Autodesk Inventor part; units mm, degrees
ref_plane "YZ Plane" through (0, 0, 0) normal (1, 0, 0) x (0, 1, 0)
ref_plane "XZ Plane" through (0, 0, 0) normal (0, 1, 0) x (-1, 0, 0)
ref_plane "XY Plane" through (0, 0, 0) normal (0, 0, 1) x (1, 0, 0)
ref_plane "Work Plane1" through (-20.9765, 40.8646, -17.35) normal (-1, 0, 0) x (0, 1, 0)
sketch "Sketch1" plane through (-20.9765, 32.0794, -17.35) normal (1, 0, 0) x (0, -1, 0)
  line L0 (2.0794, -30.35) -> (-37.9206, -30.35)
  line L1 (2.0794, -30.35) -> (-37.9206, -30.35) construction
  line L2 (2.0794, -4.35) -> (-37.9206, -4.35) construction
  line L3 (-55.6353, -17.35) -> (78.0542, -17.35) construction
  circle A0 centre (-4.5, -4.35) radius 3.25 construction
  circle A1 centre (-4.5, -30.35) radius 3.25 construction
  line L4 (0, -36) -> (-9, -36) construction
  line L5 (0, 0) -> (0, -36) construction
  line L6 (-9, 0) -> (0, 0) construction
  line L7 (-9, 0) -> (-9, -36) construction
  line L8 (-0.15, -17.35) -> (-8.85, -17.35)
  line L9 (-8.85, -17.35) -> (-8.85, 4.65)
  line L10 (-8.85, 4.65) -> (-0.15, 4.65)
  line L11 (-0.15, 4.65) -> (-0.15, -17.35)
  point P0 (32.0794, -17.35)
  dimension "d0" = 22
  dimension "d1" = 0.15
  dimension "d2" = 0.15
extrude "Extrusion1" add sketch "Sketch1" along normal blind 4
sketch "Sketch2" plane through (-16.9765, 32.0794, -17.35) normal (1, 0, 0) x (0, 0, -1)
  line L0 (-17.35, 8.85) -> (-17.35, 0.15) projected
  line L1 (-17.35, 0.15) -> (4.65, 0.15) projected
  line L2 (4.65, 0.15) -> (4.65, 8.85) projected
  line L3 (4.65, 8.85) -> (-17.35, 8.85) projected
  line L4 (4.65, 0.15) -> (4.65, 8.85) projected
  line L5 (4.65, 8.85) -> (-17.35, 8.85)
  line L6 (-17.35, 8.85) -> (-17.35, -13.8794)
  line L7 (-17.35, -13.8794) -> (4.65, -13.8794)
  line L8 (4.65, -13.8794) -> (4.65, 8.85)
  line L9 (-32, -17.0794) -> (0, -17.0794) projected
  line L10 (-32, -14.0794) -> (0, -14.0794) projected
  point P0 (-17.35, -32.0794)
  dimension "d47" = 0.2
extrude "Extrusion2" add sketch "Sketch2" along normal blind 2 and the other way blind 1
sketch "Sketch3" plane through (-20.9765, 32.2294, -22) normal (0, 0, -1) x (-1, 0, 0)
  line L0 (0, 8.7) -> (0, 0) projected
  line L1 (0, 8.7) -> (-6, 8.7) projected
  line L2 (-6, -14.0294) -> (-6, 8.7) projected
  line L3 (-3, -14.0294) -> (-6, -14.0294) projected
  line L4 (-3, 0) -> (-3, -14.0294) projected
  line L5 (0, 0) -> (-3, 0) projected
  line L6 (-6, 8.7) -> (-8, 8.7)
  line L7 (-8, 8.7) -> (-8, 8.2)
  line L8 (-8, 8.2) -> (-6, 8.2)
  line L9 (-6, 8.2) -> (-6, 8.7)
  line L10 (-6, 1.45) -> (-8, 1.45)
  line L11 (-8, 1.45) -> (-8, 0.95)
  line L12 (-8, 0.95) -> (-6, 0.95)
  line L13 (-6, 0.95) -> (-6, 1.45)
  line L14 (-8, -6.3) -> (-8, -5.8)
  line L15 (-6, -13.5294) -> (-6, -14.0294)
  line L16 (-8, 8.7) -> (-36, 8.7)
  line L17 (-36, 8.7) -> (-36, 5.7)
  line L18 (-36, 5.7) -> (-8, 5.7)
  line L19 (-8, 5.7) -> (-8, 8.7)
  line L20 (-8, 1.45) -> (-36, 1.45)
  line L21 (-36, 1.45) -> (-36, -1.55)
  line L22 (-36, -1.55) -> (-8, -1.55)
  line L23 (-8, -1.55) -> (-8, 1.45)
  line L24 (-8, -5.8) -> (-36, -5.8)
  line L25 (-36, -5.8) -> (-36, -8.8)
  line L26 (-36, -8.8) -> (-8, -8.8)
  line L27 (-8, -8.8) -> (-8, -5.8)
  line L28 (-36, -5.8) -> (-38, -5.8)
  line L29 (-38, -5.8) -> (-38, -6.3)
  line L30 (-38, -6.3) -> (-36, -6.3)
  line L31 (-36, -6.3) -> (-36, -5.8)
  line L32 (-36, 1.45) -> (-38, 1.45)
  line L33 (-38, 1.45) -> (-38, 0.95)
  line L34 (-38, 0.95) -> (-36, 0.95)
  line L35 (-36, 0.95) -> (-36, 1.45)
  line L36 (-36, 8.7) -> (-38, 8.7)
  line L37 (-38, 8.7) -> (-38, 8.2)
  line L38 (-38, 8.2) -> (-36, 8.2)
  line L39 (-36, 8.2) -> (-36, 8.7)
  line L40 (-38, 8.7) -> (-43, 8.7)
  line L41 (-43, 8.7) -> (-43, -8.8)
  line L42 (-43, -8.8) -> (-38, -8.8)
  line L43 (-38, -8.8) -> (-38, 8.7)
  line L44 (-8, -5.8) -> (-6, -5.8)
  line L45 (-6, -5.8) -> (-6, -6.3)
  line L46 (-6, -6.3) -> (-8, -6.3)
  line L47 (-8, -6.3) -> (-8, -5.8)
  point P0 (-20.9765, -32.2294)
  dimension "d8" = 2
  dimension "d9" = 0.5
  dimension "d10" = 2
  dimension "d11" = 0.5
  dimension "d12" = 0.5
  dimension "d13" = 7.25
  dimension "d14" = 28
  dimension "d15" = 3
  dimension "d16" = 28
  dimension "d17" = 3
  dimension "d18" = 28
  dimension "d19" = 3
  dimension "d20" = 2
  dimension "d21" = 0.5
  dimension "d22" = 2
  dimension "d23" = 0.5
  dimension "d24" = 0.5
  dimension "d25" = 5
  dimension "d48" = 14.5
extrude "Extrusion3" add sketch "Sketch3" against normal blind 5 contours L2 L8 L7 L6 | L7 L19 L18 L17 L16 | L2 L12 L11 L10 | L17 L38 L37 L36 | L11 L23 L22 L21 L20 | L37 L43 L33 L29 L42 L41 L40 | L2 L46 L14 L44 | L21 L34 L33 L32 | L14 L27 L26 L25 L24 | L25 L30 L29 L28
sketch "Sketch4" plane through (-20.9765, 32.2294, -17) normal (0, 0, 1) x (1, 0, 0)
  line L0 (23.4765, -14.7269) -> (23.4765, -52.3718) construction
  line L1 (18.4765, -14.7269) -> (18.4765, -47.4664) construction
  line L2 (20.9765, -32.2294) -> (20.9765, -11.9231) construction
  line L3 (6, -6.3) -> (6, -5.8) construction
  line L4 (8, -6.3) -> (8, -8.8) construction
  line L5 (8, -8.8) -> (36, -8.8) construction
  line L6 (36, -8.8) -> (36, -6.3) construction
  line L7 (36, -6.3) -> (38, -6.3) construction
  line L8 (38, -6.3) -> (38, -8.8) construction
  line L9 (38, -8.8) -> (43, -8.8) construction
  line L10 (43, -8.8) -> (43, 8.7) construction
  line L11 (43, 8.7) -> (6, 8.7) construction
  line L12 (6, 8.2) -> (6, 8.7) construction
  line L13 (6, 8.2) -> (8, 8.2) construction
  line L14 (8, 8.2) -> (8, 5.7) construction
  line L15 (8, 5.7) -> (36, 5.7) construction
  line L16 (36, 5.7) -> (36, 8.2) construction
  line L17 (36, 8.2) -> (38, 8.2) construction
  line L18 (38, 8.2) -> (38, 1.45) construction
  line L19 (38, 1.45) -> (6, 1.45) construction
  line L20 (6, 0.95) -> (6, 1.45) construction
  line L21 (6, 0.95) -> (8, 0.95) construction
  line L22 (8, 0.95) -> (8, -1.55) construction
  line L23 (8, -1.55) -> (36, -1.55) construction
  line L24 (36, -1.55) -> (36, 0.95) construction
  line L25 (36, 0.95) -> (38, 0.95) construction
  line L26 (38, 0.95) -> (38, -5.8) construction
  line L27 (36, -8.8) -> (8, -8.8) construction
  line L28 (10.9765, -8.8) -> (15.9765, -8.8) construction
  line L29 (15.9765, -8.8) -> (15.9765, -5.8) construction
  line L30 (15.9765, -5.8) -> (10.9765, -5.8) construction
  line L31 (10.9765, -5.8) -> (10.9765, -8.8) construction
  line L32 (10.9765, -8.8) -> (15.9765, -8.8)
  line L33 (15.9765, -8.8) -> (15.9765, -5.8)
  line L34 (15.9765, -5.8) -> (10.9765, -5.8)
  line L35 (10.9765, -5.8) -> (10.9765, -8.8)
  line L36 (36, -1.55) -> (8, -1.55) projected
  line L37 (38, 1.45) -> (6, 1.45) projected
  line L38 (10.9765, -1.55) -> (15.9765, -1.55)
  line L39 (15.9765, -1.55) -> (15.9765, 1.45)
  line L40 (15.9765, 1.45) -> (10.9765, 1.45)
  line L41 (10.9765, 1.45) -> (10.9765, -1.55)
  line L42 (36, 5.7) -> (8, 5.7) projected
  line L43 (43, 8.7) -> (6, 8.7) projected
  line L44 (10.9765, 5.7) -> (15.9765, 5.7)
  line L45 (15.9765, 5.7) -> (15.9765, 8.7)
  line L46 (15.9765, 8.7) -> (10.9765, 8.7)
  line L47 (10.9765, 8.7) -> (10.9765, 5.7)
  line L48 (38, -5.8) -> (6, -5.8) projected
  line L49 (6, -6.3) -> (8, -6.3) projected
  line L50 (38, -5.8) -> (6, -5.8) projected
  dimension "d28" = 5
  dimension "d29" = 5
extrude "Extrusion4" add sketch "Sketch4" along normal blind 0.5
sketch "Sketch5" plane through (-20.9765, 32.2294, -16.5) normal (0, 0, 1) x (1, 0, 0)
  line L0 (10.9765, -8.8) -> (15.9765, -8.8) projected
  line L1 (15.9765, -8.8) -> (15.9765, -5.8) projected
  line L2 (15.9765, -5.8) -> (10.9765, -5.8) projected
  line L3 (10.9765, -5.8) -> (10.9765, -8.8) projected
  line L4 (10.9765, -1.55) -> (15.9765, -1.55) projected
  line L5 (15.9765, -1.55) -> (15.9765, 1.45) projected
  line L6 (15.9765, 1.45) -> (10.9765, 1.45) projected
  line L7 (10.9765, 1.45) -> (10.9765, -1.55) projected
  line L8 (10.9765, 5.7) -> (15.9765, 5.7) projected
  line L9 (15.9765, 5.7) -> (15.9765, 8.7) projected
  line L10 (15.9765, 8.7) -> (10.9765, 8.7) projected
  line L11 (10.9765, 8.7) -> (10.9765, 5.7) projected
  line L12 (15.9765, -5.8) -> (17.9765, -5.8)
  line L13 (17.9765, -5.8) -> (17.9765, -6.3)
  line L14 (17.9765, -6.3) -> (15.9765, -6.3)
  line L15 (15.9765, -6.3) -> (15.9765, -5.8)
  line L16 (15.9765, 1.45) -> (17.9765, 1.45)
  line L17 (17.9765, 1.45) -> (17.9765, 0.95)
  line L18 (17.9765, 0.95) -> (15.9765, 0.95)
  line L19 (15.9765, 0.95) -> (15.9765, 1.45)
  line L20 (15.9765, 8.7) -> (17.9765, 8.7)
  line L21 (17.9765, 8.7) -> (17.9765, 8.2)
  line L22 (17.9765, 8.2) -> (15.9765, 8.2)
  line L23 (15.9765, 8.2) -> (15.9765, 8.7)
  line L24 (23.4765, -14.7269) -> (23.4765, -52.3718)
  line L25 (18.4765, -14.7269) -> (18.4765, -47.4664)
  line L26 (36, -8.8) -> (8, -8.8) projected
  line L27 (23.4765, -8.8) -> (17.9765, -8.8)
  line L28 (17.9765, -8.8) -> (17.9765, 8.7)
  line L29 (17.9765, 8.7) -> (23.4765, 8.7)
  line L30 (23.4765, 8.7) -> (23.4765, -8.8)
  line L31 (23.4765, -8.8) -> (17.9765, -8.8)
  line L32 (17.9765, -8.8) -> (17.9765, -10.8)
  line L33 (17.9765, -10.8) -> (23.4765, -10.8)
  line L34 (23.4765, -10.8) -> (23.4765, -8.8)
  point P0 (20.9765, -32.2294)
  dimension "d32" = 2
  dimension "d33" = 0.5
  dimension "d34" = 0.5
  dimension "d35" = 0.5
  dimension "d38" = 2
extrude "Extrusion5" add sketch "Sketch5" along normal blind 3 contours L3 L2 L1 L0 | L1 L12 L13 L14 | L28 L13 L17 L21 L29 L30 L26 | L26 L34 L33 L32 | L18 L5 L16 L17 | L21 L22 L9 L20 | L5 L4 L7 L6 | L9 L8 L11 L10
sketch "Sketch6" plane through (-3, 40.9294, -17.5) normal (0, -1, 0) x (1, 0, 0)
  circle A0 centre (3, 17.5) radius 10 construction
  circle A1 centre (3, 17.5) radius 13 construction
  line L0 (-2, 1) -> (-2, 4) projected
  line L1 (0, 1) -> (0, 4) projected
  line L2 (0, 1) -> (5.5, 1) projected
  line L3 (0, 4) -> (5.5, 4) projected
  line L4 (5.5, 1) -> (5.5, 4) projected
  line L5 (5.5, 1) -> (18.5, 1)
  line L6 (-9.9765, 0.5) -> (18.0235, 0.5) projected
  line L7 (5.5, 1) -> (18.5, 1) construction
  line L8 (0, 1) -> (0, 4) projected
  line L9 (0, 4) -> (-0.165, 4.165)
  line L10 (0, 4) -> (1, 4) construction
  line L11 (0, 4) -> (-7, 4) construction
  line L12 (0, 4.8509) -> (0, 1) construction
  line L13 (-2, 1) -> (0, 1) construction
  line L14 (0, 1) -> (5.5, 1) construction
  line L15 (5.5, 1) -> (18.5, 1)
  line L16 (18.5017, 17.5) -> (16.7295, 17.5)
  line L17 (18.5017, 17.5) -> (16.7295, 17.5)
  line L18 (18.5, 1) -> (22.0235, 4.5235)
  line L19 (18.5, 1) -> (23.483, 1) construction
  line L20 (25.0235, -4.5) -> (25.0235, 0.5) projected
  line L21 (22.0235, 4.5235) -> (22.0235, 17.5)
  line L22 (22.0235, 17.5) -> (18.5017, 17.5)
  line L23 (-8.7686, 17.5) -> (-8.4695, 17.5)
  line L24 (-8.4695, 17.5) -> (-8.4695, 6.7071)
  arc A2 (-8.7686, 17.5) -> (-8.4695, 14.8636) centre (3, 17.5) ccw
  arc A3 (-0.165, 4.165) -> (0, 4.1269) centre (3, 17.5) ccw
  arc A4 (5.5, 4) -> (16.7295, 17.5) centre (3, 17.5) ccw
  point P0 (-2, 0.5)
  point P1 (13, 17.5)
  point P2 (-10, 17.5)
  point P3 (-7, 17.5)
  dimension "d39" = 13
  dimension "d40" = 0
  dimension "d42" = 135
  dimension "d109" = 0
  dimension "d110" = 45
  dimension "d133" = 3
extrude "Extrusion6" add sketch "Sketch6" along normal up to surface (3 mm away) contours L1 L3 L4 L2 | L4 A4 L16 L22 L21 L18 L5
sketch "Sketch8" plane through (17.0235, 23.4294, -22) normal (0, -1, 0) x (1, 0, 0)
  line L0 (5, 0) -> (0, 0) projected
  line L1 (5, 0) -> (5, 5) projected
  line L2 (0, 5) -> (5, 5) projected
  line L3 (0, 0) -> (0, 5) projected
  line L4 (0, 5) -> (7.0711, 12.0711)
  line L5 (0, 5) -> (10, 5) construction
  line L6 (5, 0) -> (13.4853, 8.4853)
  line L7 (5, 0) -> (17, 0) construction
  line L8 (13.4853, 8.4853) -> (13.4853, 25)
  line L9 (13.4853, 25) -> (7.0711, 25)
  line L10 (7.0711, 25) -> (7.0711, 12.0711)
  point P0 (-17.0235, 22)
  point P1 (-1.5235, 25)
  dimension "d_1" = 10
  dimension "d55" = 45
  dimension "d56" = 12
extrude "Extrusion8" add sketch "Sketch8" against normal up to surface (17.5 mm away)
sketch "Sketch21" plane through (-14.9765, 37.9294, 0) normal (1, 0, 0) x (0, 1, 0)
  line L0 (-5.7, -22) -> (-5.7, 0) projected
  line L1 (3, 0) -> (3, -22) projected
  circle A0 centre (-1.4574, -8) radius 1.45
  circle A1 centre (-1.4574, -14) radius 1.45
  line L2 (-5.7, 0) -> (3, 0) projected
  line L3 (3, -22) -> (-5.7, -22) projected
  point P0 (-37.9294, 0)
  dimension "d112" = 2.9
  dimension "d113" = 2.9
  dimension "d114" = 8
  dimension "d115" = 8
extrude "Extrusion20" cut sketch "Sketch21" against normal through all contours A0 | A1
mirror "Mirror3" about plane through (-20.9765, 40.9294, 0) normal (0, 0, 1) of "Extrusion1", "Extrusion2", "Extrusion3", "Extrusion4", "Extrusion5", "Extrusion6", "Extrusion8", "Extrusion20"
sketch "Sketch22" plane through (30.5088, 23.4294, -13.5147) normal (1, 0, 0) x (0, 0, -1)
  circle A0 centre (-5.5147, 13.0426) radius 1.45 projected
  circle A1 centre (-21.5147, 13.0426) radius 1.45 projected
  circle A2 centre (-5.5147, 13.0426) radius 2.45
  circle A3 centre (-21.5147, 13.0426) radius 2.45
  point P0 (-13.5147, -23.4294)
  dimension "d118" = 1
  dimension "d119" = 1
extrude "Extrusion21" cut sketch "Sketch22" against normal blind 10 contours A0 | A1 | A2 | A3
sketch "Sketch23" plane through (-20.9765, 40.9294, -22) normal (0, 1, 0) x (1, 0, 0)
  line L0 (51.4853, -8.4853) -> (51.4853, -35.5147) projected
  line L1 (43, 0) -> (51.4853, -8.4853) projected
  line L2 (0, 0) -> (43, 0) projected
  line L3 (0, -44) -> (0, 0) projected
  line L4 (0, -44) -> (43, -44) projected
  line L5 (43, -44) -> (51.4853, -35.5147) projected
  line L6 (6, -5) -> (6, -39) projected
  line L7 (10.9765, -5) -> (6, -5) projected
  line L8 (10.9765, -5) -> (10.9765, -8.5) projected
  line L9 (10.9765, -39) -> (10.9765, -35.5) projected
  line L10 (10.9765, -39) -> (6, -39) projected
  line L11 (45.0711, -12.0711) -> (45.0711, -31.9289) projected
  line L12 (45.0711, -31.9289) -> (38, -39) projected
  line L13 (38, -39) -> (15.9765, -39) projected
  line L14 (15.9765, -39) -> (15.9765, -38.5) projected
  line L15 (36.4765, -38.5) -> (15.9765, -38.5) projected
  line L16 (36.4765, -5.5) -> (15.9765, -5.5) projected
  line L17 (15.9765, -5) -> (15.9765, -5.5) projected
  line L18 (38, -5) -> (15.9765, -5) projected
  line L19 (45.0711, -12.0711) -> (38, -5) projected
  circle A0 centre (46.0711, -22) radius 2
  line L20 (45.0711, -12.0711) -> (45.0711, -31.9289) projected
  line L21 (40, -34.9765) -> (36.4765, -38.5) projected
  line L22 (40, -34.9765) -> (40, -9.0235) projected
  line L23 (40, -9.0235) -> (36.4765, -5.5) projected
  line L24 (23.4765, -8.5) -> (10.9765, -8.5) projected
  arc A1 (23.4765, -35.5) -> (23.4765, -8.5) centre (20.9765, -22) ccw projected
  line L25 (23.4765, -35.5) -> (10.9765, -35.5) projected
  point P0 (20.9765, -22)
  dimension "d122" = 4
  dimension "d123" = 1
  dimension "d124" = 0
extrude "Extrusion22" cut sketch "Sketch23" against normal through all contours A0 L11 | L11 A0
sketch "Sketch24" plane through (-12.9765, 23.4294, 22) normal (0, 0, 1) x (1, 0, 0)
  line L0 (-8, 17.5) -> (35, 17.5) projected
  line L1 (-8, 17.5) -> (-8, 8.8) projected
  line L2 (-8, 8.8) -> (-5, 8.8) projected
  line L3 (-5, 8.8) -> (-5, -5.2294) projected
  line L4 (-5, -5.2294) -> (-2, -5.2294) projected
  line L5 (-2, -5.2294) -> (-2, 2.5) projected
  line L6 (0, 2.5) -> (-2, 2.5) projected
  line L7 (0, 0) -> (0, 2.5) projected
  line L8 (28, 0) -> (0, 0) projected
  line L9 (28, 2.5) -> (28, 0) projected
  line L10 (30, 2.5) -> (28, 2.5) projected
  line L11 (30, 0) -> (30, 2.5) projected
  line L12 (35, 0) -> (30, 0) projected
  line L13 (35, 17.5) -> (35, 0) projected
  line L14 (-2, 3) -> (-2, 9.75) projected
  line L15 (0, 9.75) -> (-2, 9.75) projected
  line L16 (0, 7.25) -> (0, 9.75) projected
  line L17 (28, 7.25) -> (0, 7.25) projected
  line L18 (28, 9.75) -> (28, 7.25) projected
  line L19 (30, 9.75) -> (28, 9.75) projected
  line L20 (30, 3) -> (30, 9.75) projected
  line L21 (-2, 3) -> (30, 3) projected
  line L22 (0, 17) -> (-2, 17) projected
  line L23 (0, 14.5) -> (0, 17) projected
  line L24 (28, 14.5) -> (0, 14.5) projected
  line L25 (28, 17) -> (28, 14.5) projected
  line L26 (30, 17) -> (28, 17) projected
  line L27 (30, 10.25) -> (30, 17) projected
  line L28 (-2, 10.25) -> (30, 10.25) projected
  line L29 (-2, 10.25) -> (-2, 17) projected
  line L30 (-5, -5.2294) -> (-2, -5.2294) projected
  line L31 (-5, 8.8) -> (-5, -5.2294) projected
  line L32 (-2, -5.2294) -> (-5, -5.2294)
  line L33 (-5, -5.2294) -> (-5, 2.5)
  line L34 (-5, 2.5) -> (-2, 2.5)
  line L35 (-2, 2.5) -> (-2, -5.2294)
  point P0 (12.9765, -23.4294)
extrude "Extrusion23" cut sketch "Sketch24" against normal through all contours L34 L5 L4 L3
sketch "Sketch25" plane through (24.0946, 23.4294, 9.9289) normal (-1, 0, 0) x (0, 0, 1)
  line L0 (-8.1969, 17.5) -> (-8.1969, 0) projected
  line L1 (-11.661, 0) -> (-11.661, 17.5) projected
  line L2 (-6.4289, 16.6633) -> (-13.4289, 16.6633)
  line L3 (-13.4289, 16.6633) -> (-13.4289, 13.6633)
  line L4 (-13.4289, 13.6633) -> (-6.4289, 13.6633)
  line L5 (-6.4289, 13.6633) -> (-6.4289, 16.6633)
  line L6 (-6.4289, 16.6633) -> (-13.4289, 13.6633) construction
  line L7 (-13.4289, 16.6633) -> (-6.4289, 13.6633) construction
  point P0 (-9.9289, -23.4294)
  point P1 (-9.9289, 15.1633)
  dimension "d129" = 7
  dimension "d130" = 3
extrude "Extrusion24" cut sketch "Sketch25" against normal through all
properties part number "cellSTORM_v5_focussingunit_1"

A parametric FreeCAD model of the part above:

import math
import FreeCAD as App
import Part
import Sketcher
Q = App.Units.Quantity


def add_polygon(sketch, points):
    """Adds a closed chain of lines whose ends are joined by coincident constraints."""
    first, n = sketch.GeometryCount, len(points)
    for a, b in zip(points, points[1:] + points[:1]):
        sketch.addGeometry(Part.LineSegment(App.Vector(*a, 0), App.Vector(*b, 0)), False)
    for i in range(n):
        sketch.addConstraint(Sketcher.Constraint("Coincident", first + i, 2, first + (i + 1) % n, 1))

doc = App.newDocument("Part")
body = doc.addObject("PartDesign::Body", "Body")

# Sketch on YZ plane
sketch1 = doc.addObject("Sketcher::SketchObject", "Sketch")
body.addObject(sketch1)
sketch1.AttachmentSupport = (doc.YZ_Plane, [""])
sketch1.MapMode = "FlatFace"
sketch1.AttachmentOffset = App.Placement(App.Vector(0, 0, -20.9765), App.Rotation())
add_polygon(sketch1, [(40.9294, 0), (32.2294, 0), (32.2294, -22), (40.9294, -22)])  # lines 0-3
sketch1.addConstraint([
    Sketcher.Constraint("Horizontal", 0),
    Sketcher.Constraint("Vertical", 1),
    Sketcher.Constraint("Horizontal", 2),
    Sketcher.Constraint("Vertical", 3),
    Sketcher.Constraint("PointOnObject", 0, 2, -1),
    Sketcher.Constraint("DistanceY", 1, 2, 1, 1, 22.0),
    Sketcher.Constraint("DistanceX", 0, 2, 0, 1, 8.7),
    Sketcher.Constraint("DistanceX", -1, 1, 0, 2, 32.2294),
])
pad1 = doc.addObject("PartDesign::Pad", "Pad")
body.addObject(pad1)
pad1.Profile = sketch1
pad1.Length = 4

# Sketch on YZ plane
sketch2 = doc.addObject("Sketcher::SketchObject", "Sketch001")
body.addObject(sketch2)
sketch2.AttachmentSupport = (doc.YZ_Plane, [""])
sketch2.MapMode = "FlatFace"
sketch2.AttachmentOffset = App.Placement(App.Vector(0, 0, -16.9765), App.Rotation())
add_polygon(sketch2, [(40.9294, -22), (40.9294, 0), (18.2, 0), (18.2, -22)])  # lines 0-3
sketch2.addConstraint([
    Sketcher.Constraint("Vertical", 0),
    Sketcher.Constraint("Horizontal", 1),
    Sketcher.Constraint("Vertical", 2),
    Sketcher.Constraint("Horizontal", 3),
    Sketcher.Constraint("PointOnObject", 0, 2, -1),
    Sketcher.Constraint("DistanceY", 0, 1, 0, 2, 22.0),
    Sketcher.Constraint("DistanceX", -1, 1, 1, 2, 18.2),
    Sketcher.Constraint("DistanceX", 1, 2, 1, 1, 22.7294),
])
pad2 = doc.addObject("PartDesign::Pad", "Pad001")
body.addObject(pad2)
pad2.Profile = sketch2
pad2.Type = "TwoLengths"
pad2.Length = 2
pad2.Length2 = 1

# Sketch on XY plane
sketch3 = doc.addObject("Sketcher::SketchObject", "Sketch002")
body.addObject(sketch3)
sketch3.AttachmentSupport = (doc.XY_Plane, [""])
sketch3.MapMode = "FlatFace"
sketch3.AttachmentOffset = App.Placement(App.Vector(0, 0, -22), App.Rotation())
add_polygon(sketch3, [(-14.9765, 40.4294), (-14.9765, 40.9294), (22.0235, 40.9294), (22.0235, 23.4294), (17.0235, 23.4294), (17.0235, 25.9294), (15.0235, 25.9294), (15.0235, 23.4294), (-12.9765, 23.4294), (-12.9765, 25.9294), (-14.9765, 25.9294), (-14.9765, 26.4294), (17.0235, 26.4294), (17.0235, 33.1794), (15.0235, 33.1794), (15.0235, 30.6794), (-12.9765, 30.6794), (-12.9765, 33.1794), (-14.9765, 33.1794), (-14.9765, 33.6794), (17.0235, 33.6794), (17.0235, 40.4294), (15.0235, 40.4294), (15.0235, 37.9294), (-12.9765, 37.9294), (-12.9765, 40.4294)])  # lines 0-25
sketch3.addConstraint([
    Sketcher.Constraint("Vertical", 0),
    Sketcher.Constraint("Horizontal", 1),
    Sketcher.Constraint("Vertical", 2),
    Sketcher.Constraint("Horizontal", 3),
    Sketcher.Constraint("Vertical", 4),
    Sketcher.Constraint("Horizontal", 5),
    Sketcher.Constraint("Vertical", 6),
    Sketcher.Constraint("Horizontal", 7),
    Sketcher.Constraint("Vertical", 8),
    Sketcher.Constraint("Horizontal", 9),
    Sketcher.Constraint("Vertical", 10),
    Sketcher.Constraint("Horizontal", 11),
    Sketcher.Constraint("Vertical", 12),
    Sketcher.Constraint("Horizontal", 13),
    Sketcher.Constraint("Vertical", 14),
    Sketcher.Constraint("Horizontal", 15),
    Sketcher.Constraint("Vertical", 16),
    Sketcher.Constraint("Horizontal", 17),
    Sketcher.Constraint("Vertical", 18),
    Sketcher.Constraint("Horizontal", 19),
    Sketcher.Constraint("Vertical", 20),
    Sketcher.Constraint("Horizontal", 21),
    Sketcher.Constraint("Vertical", 22),
    Sketcher.Constraint("Horizontal", 23),
    Sketcher.Constraint("Vertical", 24),
    Sketcher.Constraint("Horizontal", 25),
    Sketcher.Constraint("Horizontal", 3, 2, 6, 2),
    Sketcher.Constraint("Horizontal", 5, 2, 8, 2),
    Sketcher.Constraint("Horizontal", 13, 2, 16, 2),
    Sketcher.Constraint("Horizontal", 21, 2, 24, 2),
    Sketcher.Constraint("Vertical", 0, 2, 9, 2),
    Sketcher.Constraint("Vertical", 4, 2, 11, 2),
    Sketcher.Constraint("Vertical", 6, 2, 13, 2),
    Sketcher.Constraint("Vertical", 8, 2, 15, 2),
    Sketcher.Constraint("Vertical", 10, 2, 17, 2),
    Sketcher.Constraint("Vertical", 12, 2, 19, 2),
    Sketcher.Constraint("Vertical", 14, 2, 21, 2),
    Sketcher.Constraint("Vertical", 16, 2, 23, 2),
    Sketcher.Constraint("Equal", 5, 9),
    Sketcher.Constraint("Equal", 0, 10),
    Sketcher.Constraint("Equal", 8, 14),
    Sketcher.Constraint("Equal", 10, 18),
    Sketcher.Constraint("Equal", 12, 20),
    Sketcher.Constraint("Equal", 16, 22),
    Sketcher.Constraint("DistanceX", 3, 2, 3, 1, 5.0),
    Sketcher.Constraint("DistanceX", 5, 2, 5, 1, 2.0),
    Sketcher.Constraint("DistanceX", 7, 2, 7, 1, 28.0),
    Sketcher.Constraint("DistanceY", 0, 1, 0, 2, 0.5),
    Sketcher.Constraint("DistanceY", 7, 2, 10, 2, 3.0),
    Sketcher.Constraint("DistanceY", 10, 2, 0, 2, 14.5),
    Sketcher.Constraint("DistanceX", 0, 2, -1, 1, 14.9765),
    Sketcher.Constraint("DistanceY", -1, 1, 0, 2, 40.9294),
])
pad3 = doc.addObject("PartDesign::Pad", "Pad002")
body.addObject(pad3)
pad3.Profile = sketch3
pad3.Length = 5

# Sketch on XY plane
sketch4 = doc.addObject("Sketcher::SketchObject", "Sketch003")
body.addObject(sketch4)
sketch4.AttachmentSupport = (doc.XY_Plane, [""])
sketch4.MapMode = "FlatFace"
sketch4.AttachmentOffset = App.Placement(App.Vector(0, 0, -17), App.Rotation())
add_polygon(sketch4, [(-10, 26.4294), (-10, 23.4294), (-5, 23.4294), (-5, 26.4294)])  # lines 0-3
add_polygon(sketch4, [(-10, 30.6794), (-5, 30.6794), (-5, 33.6794), (-10, 33.6794)])  # lines 4-7
add_polygon(sketch4, [(-10, 37.9294), (-5, 37.9294), (-5, 40.9294), (-10, 40.9294)])  # lines 8-11
sketch4.addConstraint([
    Sketcher.Constraint("Vertical", 0),
    Sketcher.Constraint("Horizontal", 1),
    Sketcher.Constraint("Vertical", 2),
    Sketcher.Constraint("Horizontal", 3),
    Sketcher.Constraint("Horizontal", 4),
    Sketcher.Constraint("Vertical", 5),
    Sketcher.Constraint("Horizontal", 6),
    Sketcher.Constraint("Vertical", 7),
    Sketcher.Constraint("Horizontal", 8),
    Sketcher.Constraint("Vertical", 9),
    Sketcher.Constraint("Horizontal", 10),
    Sketcher.Constraint("Vertical", 11),
    Sketcher.Constraint("Vertical", 2, 2, 4, 2),
    Sketcher.Constraint("Vertical", 3, 2, 6, 2),
    Sketcher.Constraint("Vertical", 5, 2, 8, 2),
    Sketcher.Constraint("Vertical", 7, 2, 10, 2),
    Sketcher.Constraint("Equal", 2, 5),
    Sketcher.Constraint("Equal", 7, 9),
    Sketcher.Constraint("DistanceX", 1, 1, 1, 2, 5.0),
    Sketcher.Constraint("DistanceX", 1, 2, -1, 1, 5.0),
    Sketcher.Constraint("DistanceY", 0, 2, 0, 1, 3.0),
    Sketcher.Constraint("DistanceY", 2, 2, 8, 2, 11.5),
    Sketcher.Constraint("DistanceY", 2, 2, 4, 2, 4.25),
    Sketcher.Constraint("DistanceY", -1, 1, 0, 2, 23.4294),
])
pad4 = doc.addObject("PartDesign::Pad", "Pad003")
body.addObject(pad4)
pad4.Profile = sketch4
pad4.Length = 0.5

# Sketch on XY plane
sketch5 = doc.addObject("Sketcher::SketchObject", "Sketch004")
body.addObject(sketch5)
sketch5.AttachmentSupport = (doc.XY_Plane, [""])
sketch5.MapMode = "FlatFace"
sketch5.AttachmentOffset = App.Placement(App.Vector(0, 0, -16.5), App.Rotation())
add_polygon(sketch5, [(-10, 26.4294), (-10, 23.4294), (-5, 23.4294), (-5, 25.9294), (-3, 25.9294), (-3, 21.4294), (2.5, 21.4294), (2.5, 40.9294), (-10, 40.9294), (-10, 37.9294), (-5, 37.9294), (-5, 40.4294), (-3, 40.4294), (-3, 33.6794), (-10, 33.6794), (-10, 30.6794), (-5, 30.6794), (-5, 33.1794), (-3, 33.1794), (-3, 26.4294)])  # lines 0-19
sketch5.addConstraint([
    Sketcher.Constraint("Vertical", 0),
    Sketcher.Constraint("Horizontal", 1),
    Sketcher.Constraint("Vertical", 2),
    Sketcher.Constraint("Horizontal", 3),
    Sketcher.Constraint("Vertical", 4),
    Sketcher.Constraint("Horizontal", 5),
    Sketcher.Constraint("Vertical", 6),
    Sketcher.Constraint("Horizontal", 7),
    Sketcher.Constraint("Vertical", 8),
    Sketcher.Constraint("Horizontal", 9),
    Sketcher.Constraint("Vertical", 10),
    Sketcher.Constraint("Horizontal", 11),
    Sketcher.Constraint("Vertical", 12),
    Sketcher.Constraint("Horizontal", 13),
    Sketcher.Constraint("Vertical", 14),
    Sketcher.Constraint("Horizontal", 15),
    Sketcher.Constraint("Vertical", 16),
    Sketcher.Constraint("Horizontal", 17),
    Sketcher.Constraint("Vertical", 18),
    Sketcher.Constraint("Horizontal", 19),
    Sketcher.Constraint("Vertical", 0, 2, 7, 2),
    Sketcher.Constraint("Vertical", 2, 2, 9, 2),
    Sketcher.Constraint("Vertical", 4, 2, 11, 2),
    Sketcher.Constraint("Vertical", 8, 2, 13, 2),
    Sketcher.Constraint("Vertical", 10, 2, 15, 2),
    Sketcher.Constraint("Vertical", 12, 2, 17, 2),
    Sketcher.Constraint("Equal", 0, 8),
    Sketcher.Constraint("Equal", 2, 10),
    Sketcher.Constraint("Equal", 8, 14),
    Sketcher.Constraint("Equal", 10, 16),
    Sketcher.Constraint("Equal", 12, 18),
    Sketcher.Constraint("DistanceX", 3, 1, 3, 2, 2.0),
    Sketcher.Constraint("DistanceY", 4, 2, 1, 2, 2.0),
    Sketcher.Constraint("DistanceY", 10, 2, 7, 2, 0.5),
    Sketcher.Constraint("DistanceX", 1, 1, 1, 2, 5.0),
    Sketcher.Constraint("DistanceY", 0, 2, 0, 1, 3.0),
    Sketcher.Constraint("DistanceX", 5, 1, 5, 2, 5.5),
    Sketcher.Constraint("DistanceY", 6, 1, 6, 2, 19.5),
    Sketcher.Constraint("DistanceX", 0, 2, -1, 1, 10.0),
    Sketcher.Constraint("DistanceY", -1, 1, 0, 2, 23.4294),
])
pad5 = doc.addObject("PartDesign::Pad", "Pad004")
body.addObject(pad5)
pad5.Profile = sketch5
pad5.Length = 3

# Sketch on XZ plane
sketch6 = doc.addObject("Sketcher::SketchObject", "Sketch005")
body.addObject(sketch6)
sketch6.AttachmentSupport = (doc.XZ_Plane, [""])
sketch6.MapMode = "FlatFace"
sketch6.AttachmentOffset = App.Placement(App.Vector(0, 0, -40.9294), App.Rotation())
sketch6.addGeometry([
    Part.LineSegment(App.Vector(-3, -13.5, 0), App.Vector(-3, -16.5, 0)),  # 0
    Part.LineSegment(App.Vector(-3, -16.5, 0), App.Vector(15.5, -16.5, 0)),  # 1
    Part.LineSegment(App.Vector(15.5, -16.5, 0), App.Vector(19.0235, -12.9765, 0)),  # 2
    Part.LineSegment(App.Vector(19.0235, -12.9765, 0), App.Vector(19.0235, 0, 0)),  # 3
    Part.LineSegment(App.Vector(19.0235, 0, 0), App.Vector(13.7295, 0, 0)),  # 4
    Part.ArcOfCircle(Part.Circle(App.Vector(0, 0, 0), App.Vector(0, 0, 1), 13.72953), math.radians(-79.508523), math.radians(0)),  # 5
    Part.LineSegment(App.Vector(2.5, -13.5, 0), App.Vector(-3, -13.5, 0)),  # 6
], False)
sketch6.addConstraint([
    Sketcher.Constraint("Coincident", 0, 2, 1, 1),
    Sketcher.Constraint("Coincident", 1, 2, 2, 1),
    Sketcher.Constraint("Coincident", 2, 2, 3, 1),
    Sketcher.Constraint("Coincident", 3, 2, 4, 1),
    Sketcher.Constraint("Coincident", 4, 2, 5, 2),
    Sketcher.Constraint("Coincident", 5, 1, 6, 1),
    Sketcher.Constraint("Coincident", 6, 2, 0, 1),
    Sketcher.Constraint("Vertical", 0),
    Sketcher.Constraint("Horizontal", 1),
    Sketcher.Constraint("Vertical", 3),
    Sketcher.Constraint("Horizontal", 4),
    Sketcher.Constraint("Horizontal", 6),
    Sketcher.Constraint("Coincident", 5, 3, -1, 1),
    Sketcher.Constraint("PointOnObject", 3, 2, -1),
    Sketcher.Constraint("DistanceY", 0, 2, 0, 1, 3.0),
    Sketcher.Constraint("Angle", 2, Q("45 deg")),
    Sketcher.Constraint("DistanceX", 0, 2, -1, 1, 3.0),
    Sketcher.Constraint("DistanceX", 5, 1, 1, 2, 13.0),
    Sketcher.Constraint("DistanceX", 1, 1, 1, 2, 18.5),
    Sketcher.Constraint("DistanceY", 0, 2, -1, 1, 16.5),
    Sketcher.Constraint("DistanceX", 4, 2, 4, 1, 5.294),
])
pad6 = doc.addObject("PartDesign::Pad", "Pad005")
body.addObject(pad6)
pad6.Profile = sketch6
pad6.Length = 3

# Sketch on XZ plane
sketch7 = doc.addObject("Sketcher::SketchObject", "Sketch006")
body.addObject(sketch7)
sketch7.AttachmentSupport = (doc.XZ_Plane, [""])
sketch7.MapMode = "FlatFace"
sketch7.AttachmentOffset = App.Placement(App.Vector(0, 0, -23.4294), App.Rotation())
add_polygon(sketch7, [(17.0235, -22), (22.0235, -22), (30.5088, -13.5147), (30.5088, 3), (24.0946, 3), (24.0946, -9.9289), (17.0235, -17)])  # lines 0-6
sketch7.addConstraint([
    Sketcher.Constraint("Horizontal", 0),
    Sketcher.Constraint("Vertical", 2),
    Sketcher.Constraint("Horizontal", 3),
    Sketcher.Constraint("Vertical", 4),
    Sketcher.Constraint("Vertical", 6),
    Sketcher.Constraint("Parallel", 1, 5),
    Sketcher.Constraint("Equal", 0, 6),
    Sketcher.Constraint("Angle", 1, Q("45 deg")),
    Sketcher.Constraint("Distance", 1, 12.0),
    Sketcher.Constraint("Distance", 5, 10.0),
    Sketcher.Constraint("DistanceX", 0, 1, 0, 2, 5.0),
    Sketcher.Constraint("DistanceY", 0, 2, -1, 1, 22.0),
    Sketcher.Constraint("DistanceY", -1, 1, 2, 2, 3.0),
    Sketcher.Constraint("DistanceX", -1, 1, 0, 2, 22.0235),
])
pad7 = doc.addObject("PartDesign::Pad", "Pad006")
body.addObject(pad7)
pad7.Profile = sketch7
pad7.Length = 17.5
pad7.Reversed = True

# Sketch on YZ plane
sketch8 = doc.addObject("Sketcher::SketchObject", "Sketch007")
body.addObject(sketch8)
sketch8.AttachmentSupport = (doc.YZ_Plane, [""])
sketch8.MapMode = "FlatFace"
sketch8.AttachmentOffset = App.Placement(App.Vector(0, 0, -14.9765), App.Rotation())
sketch8.addGeometry([
    Part.Circle(App.Vector(36.472, -8, 0), App.Vector(0, 0, 1), 1.45),
    Part.Circle(App.Vector(36.472, -14, 0), App.Vector(0, 0, 1), 1.45),
], False)
sketch8.addConstraint([
    Sketcher.Constraint("Equal", 0, 1),
    Sketcher.Constraint("Vertical", 0, 3, 1, 3),
    Sketcher.Constraint("Diameter", 0, 2.9),
    Sketcher.Constraint("DistanceY", 0, 3, -1, 1, 8.0),
    Sketcher.Constraint("DistanceY", 1, 3, -1, 1, 14.0),
    Sketcher.Constraint("DistanceX", -1, 1, 0, 3, 36.472),
])
pocket1 = doc.addObject("PartDesign::Pocket", "Pocket")
body.addObject(pocket1)
pocket1.Profile = sketch8
pocket1.Type = "ThroughAll"
doc.recompute()

mirrored = doc.addObject("PartDesign::Mirrored", "Mirrored")
body.addObject(mirrored)
mirrored.Originals = [pad1, pad2, pad3, pad4, pad5, pad6, pad7, pocket1]
mirrored.MirrorPlane = (doc.XY_Plane, [""])
body.Tip = mirrored

# Sketch on YZ plane
sketch9 = doc.addObject("Sketcher::SketchObject", "Sketch008")
body.addObject(sketch9)
sketch9.AttachmentSupport = (doc.YZ_Plane, [""])
sketch9.MapMode = "FlatFace"
sketch9.AttachmentOffset = App.Placement(App.Vector(0, 0, 30.5088), App.Rotation())
sketch9.addGeometry([
    Part.Circle(App.Vector(36.472, -8, 0), App.Vector(0, 0, 1), 2.45),
    Part.Circle(App.Vector(36.472, 8, 0), App.Vector(0, 0, 1), 2.45),
], False)
sketch9.addConstraint([
    Sketcher.Constraint("Equal", 0, 1),
    Sketcher.Constraint("Symmetric", 0, 3, 1, 3, -1),
    Sketcher.Constraint("Diameter", 0, 4.9),
    Sketcher.Constraint("DistanceY", 0, 3, -1, 1, 8.0),
    Sketcher.Constraint("DistanceX", -1, 1, 0, 3, 36.472),
])
pocket2 = doc.addObject("PartDesign::Pocket", "Pocket001")
body.addObject(pocket2)
pocket2.Profile = sketch9
pocket2.Length = 10

# Sketch on XZ plane
sketch10 = doc.addObject("Sketcher::SketchObject", "Sketch009")
body.addObject(sketch10)
sketch10.AttachmentSupport = (doc.XZ_Plane, [""])
sketch10.MapMode = "FlatFace"
sketch10.AttachmentOffset = App.Placement(App.Vector(0, 0, -40.9294), App.Rotation())
sketch10.addGeometry(Part.Circle(App.Vector(25.0946, 0, 0), App.Vector(0, 0, 1), 2), False)
sketch10.addConstraint([
    Sketcher.Constraint("PointOnObject", 0, 3, -1),
    Sketcher.Constraint("Diameter", 0, 4.0),
    Sketcher.Constraint("DistanceX", -1, 1, 0, 3, 25.0946),
])
pocket3 = doc.addObject("PartDesign::Pocket", "Pocket002")
body.addObject(pocket3)
pocket3.Profile = sketch10
pocket3.Type = "ThroughAll"
pocket3.Reversed = True

# Sketch on XY plane
sketch11 = doc.addObject("Sketcher::SketchObject", "Sketch010")
body.addObject(sketch11)
sketch11.AttachmentSupport = (doc.XY_Plane, [""])
sketch11.MapMode = "FlatFace"
sketch11.AttachmentOffset = App.Placement(App.Vector(0, 0, 22), App.Rotation())
add_polygon(sketch11, [(-14.9765, 25.9294), (-17.9765, 25.9294), (-17.9765, 18.2), (-14.9765, 18.2)])  # lines 0-3
sketch11.addConstraint([
    Sketcher.Constraint("Horizontal", 0),
    Sketcher.Constraint("Vertical", 1),
    Sketcher.Constraint("Horizontal", 2),
    Sketcher.Constraint("Vertical", 3),
    Sketcher.Constraint("DistanceX", 0, 2, 0, 1, 3.0),
    Sketcher.Constraint("DistanceY", -1, 1, 1, 2, 18.2),
    Sketcher.Constraint("DistanceY", 1, 2, 1, 1, 7.7294),
    Sketcher.Constraint("DistanceX", 0, 2, -1, 1, 17.9765),
])
pocket4 = doc.addObject("PartDesign::Pocket", "Pocket003")
body.addObject(pocket4)
pocket4.Profile = sketch11
pocket4.Type = "ThroughAll"

# Sketch on YZ plane
sketch12 = doc.addObject("Sketcher::SketchObject", "Sketch011")
body.addObject(sketch12)
sketch12.AttachmentSupport = (doc.YZ_Plane, [""])
sketch12.MapMode = "FlatFace"
sketch12.AttachmentOffset = App.Placement(App.Vector(0, 0, 24.0946), App.Rotation())
add_polygon(sketch12, [(40.0927, 3.5), (40.0927, -3.5), (37.0927, -3.5), (37.0927, 3.5)])  # lines 0-3
sketch12.addConstraint([
    Sketcher.Constraint("Vertical", 0),
    Sketcher.Constraint("Horizontal", 1),
    Sketcher.Constraint("Vertical", 2),
    Sketcher.Constraint("Horizontal", 3),
    Sketcher.Constraint("DistanceX", 1, 2, 1, 1, 3.0),
    Sketcher.Constraint("DistanceY", 0, 2, 0, 1, 7.0),
    Sketcher.Constraint("DistanceY", 0, 2, -1, 1, 3.5),
    Sketcher.Constraint("DistanceX", -1, 1, 0, 2, 40.0927),
])
pocket5 = doc.addObject("PartDesign::Pocket", "Pocket004")
body.addObject(pocket5)
pocket5.Profile = sketch12
pocket5.Type = "ThroughAll"
pocket5.Reversed = True

doc.recompute()
